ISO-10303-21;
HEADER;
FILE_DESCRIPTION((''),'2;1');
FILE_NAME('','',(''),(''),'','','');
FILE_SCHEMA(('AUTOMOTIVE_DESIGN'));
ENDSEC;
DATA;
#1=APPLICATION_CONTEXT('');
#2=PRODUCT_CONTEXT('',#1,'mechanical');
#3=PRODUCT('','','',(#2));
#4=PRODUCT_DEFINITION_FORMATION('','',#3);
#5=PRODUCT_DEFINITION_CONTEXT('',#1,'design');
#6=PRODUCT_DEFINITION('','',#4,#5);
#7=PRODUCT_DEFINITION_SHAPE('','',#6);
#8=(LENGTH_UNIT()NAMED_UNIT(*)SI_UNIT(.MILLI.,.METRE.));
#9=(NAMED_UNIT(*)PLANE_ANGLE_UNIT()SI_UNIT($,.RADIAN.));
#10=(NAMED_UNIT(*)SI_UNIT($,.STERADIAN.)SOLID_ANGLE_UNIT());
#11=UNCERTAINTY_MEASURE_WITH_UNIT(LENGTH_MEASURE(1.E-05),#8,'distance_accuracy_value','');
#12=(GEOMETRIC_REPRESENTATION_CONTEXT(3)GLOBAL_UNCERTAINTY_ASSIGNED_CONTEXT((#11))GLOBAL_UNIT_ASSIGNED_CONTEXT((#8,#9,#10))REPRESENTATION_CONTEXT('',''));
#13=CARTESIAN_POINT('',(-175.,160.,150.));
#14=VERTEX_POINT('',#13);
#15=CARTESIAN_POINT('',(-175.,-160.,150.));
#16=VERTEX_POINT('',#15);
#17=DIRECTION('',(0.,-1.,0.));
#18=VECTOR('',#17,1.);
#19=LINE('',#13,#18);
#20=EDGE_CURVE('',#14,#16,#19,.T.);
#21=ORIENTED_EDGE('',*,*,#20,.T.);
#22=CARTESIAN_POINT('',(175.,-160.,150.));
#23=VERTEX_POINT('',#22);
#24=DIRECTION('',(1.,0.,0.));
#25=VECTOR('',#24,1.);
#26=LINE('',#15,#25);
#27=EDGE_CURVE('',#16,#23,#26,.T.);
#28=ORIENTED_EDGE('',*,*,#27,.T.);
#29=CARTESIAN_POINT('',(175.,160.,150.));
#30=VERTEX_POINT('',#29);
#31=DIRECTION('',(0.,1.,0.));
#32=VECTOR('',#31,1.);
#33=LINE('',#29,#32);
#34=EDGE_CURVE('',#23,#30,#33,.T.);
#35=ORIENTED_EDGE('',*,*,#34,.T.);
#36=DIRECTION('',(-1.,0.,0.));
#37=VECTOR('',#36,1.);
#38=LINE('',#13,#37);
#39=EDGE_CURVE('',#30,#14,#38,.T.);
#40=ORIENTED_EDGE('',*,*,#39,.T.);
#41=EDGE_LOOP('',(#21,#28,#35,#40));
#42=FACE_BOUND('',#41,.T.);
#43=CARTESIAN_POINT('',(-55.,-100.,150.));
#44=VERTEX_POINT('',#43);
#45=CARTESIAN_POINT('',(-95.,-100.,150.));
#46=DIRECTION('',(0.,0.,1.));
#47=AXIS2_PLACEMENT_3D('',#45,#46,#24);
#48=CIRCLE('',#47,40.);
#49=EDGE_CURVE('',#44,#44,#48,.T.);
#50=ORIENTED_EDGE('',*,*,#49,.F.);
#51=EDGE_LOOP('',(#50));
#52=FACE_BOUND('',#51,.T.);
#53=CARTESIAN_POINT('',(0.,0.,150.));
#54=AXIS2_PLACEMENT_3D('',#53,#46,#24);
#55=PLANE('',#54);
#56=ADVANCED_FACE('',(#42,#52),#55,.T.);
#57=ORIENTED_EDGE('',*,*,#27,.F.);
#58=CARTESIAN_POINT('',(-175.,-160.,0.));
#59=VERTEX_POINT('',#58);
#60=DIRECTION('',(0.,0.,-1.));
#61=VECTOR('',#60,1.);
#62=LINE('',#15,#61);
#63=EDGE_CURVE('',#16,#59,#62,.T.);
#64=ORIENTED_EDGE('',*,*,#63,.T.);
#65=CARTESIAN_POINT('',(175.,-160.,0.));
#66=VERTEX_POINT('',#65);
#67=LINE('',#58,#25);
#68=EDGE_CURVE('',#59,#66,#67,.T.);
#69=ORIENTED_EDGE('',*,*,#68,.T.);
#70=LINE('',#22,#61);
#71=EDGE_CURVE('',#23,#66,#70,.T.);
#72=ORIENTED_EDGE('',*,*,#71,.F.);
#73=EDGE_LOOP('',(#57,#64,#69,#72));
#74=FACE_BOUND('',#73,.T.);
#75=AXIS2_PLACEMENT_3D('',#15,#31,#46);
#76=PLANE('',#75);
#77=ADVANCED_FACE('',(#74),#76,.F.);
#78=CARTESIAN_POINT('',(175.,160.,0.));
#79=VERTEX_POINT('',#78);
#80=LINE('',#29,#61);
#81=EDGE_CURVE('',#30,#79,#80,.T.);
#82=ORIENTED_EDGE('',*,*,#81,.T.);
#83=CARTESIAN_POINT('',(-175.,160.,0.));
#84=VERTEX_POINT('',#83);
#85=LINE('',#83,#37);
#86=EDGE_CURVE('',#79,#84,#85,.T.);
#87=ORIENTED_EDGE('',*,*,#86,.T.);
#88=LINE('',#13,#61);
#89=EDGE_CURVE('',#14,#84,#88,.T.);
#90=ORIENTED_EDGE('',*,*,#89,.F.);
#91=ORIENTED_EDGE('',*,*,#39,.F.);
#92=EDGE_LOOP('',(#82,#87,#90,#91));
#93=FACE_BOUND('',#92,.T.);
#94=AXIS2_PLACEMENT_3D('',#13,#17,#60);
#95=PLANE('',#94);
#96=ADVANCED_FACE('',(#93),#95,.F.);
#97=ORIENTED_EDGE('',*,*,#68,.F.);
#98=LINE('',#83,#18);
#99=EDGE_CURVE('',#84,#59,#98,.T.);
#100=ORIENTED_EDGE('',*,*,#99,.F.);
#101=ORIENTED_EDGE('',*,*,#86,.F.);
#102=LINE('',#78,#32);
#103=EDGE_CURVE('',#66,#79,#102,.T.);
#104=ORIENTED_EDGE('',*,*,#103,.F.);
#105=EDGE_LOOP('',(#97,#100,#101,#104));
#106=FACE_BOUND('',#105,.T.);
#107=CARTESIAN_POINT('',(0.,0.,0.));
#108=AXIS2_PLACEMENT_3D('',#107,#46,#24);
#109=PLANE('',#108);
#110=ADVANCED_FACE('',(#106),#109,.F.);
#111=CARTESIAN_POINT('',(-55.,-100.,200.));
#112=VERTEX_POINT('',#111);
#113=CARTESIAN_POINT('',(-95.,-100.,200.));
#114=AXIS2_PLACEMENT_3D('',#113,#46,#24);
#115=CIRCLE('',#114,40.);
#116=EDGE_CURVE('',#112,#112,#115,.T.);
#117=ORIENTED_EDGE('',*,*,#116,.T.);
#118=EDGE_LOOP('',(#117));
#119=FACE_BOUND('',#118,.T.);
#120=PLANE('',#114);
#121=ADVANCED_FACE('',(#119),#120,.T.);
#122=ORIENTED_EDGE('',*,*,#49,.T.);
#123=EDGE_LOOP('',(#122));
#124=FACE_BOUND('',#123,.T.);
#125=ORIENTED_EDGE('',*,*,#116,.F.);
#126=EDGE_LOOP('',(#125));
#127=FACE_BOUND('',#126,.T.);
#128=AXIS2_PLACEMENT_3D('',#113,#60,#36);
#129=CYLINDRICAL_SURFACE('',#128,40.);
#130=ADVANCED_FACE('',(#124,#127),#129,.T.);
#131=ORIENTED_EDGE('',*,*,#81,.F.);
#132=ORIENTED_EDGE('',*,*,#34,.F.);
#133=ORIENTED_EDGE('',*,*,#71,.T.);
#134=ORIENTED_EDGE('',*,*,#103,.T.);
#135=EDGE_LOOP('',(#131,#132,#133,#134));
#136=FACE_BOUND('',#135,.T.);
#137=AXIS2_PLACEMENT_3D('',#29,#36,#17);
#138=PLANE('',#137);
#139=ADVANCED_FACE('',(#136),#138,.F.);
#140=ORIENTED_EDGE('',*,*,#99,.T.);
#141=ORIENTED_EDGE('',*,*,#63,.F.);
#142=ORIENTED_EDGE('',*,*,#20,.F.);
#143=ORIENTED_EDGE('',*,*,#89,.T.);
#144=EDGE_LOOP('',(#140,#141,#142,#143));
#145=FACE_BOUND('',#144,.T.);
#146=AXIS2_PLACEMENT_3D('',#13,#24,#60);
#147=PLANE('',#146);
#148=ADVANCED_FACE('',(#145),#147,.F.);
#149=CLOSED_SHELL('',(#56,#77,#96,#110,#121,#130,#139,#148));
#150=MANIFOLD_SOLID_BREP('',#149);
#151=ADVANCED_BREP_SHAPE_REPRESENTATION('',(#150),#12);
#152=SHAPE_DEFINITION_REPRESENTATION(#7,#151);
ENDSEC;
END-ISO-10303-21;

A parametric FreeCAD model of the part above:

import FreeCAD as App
import Part
import Sketcher

V = App.Vector
Q = App.Units.Quantity

doc = App.newDocument("Part")
body = doc.addObject("PartDesign::Body", "Body")

# Sketch on XY plane
sketch1 = body.newObject("Sketcher::SketchObject", "Sketch")
sketch1.AttachmentSupport = (doc.getObject("XY_Plane"), [""])
sketch1.MapMode = "FlatFace"
sketch1.addGeometry([
    Part.LineSegment(V(-175, 160, 0), V(-175, -160, 0)),
    Part.LineSegment(V(-175, -160, 0), V(175, -160, 0)),
    Part.LineSegment(V(175, -160, 0), V(175, 160, 0)),
    Part.LineSegment(V(175, 160, 0), V(-175, 160, 0)),
], False)
sketch1.addConstraint([
    Sketcher.Constraint("Coincident", 0, 2, 1, 1),
    Sketcher.Constraint("Coincident", 1, 2, 2, 1),
    Sketcher.Constraint("Coincident", 2, 2, 3, 1),
    Sketcher.Constraint("Coincident", 3, 2, 0, 1),
    Sketcher.Constraint("Vertical", 0),
    Sketcher.Constraint("Horizontal", 1),
    Sketcher.Constraint("Vertical", 2),
    Sketcher.Constraint("Horizontal", 3),
    Sketcher.Constraint("Symmetric", 0, 2, 2, 2, -1, 1),
    Sketcher.Constraint("DistanceX", 1, 1, 1, 2, Q("350 mm")),
    Sketcher.Constraint("DistanceY", 0, 2, 0, 1, Q("320 mm")),
])
pad1 = body.newObject("PartDesign::Pad", "Pad")
pad1.Profile = sketch1
pad1.Length = 150

# Sketch on XY plane
sketch2 = body.newObject("Sketcher::SketchObject", "Sketch001")
sketch2.AttachmentSupport = (doc.getObject("XY_Plane"), [""])
sketch2.MapMode = "FlatFace"
sketch2.AttachmentOffset = App.Placement(V(0, 0, 150), App.Rotation())
sketch2.addGeometry(Part.Circle(V(-95, -100, 0), V(0, 0, 1), 40), False)
sketch2.addConstraint([
    Sketcher.Constraint("Diameter", 0, Q("80 mm")),
    Sketcher.Constraint("DistanceX", 0, 3, -1, 1, Q("95 mm")),
    Sketcher.Constraint("DistanceY", 0, 3, -1, 1, Q("100 mm")),
])
pad2 = body.newObject("PartDesign::Pad", "Pad001")
pad2.Profile = sketch2
pad2.Length = 50

doc.recompute()
